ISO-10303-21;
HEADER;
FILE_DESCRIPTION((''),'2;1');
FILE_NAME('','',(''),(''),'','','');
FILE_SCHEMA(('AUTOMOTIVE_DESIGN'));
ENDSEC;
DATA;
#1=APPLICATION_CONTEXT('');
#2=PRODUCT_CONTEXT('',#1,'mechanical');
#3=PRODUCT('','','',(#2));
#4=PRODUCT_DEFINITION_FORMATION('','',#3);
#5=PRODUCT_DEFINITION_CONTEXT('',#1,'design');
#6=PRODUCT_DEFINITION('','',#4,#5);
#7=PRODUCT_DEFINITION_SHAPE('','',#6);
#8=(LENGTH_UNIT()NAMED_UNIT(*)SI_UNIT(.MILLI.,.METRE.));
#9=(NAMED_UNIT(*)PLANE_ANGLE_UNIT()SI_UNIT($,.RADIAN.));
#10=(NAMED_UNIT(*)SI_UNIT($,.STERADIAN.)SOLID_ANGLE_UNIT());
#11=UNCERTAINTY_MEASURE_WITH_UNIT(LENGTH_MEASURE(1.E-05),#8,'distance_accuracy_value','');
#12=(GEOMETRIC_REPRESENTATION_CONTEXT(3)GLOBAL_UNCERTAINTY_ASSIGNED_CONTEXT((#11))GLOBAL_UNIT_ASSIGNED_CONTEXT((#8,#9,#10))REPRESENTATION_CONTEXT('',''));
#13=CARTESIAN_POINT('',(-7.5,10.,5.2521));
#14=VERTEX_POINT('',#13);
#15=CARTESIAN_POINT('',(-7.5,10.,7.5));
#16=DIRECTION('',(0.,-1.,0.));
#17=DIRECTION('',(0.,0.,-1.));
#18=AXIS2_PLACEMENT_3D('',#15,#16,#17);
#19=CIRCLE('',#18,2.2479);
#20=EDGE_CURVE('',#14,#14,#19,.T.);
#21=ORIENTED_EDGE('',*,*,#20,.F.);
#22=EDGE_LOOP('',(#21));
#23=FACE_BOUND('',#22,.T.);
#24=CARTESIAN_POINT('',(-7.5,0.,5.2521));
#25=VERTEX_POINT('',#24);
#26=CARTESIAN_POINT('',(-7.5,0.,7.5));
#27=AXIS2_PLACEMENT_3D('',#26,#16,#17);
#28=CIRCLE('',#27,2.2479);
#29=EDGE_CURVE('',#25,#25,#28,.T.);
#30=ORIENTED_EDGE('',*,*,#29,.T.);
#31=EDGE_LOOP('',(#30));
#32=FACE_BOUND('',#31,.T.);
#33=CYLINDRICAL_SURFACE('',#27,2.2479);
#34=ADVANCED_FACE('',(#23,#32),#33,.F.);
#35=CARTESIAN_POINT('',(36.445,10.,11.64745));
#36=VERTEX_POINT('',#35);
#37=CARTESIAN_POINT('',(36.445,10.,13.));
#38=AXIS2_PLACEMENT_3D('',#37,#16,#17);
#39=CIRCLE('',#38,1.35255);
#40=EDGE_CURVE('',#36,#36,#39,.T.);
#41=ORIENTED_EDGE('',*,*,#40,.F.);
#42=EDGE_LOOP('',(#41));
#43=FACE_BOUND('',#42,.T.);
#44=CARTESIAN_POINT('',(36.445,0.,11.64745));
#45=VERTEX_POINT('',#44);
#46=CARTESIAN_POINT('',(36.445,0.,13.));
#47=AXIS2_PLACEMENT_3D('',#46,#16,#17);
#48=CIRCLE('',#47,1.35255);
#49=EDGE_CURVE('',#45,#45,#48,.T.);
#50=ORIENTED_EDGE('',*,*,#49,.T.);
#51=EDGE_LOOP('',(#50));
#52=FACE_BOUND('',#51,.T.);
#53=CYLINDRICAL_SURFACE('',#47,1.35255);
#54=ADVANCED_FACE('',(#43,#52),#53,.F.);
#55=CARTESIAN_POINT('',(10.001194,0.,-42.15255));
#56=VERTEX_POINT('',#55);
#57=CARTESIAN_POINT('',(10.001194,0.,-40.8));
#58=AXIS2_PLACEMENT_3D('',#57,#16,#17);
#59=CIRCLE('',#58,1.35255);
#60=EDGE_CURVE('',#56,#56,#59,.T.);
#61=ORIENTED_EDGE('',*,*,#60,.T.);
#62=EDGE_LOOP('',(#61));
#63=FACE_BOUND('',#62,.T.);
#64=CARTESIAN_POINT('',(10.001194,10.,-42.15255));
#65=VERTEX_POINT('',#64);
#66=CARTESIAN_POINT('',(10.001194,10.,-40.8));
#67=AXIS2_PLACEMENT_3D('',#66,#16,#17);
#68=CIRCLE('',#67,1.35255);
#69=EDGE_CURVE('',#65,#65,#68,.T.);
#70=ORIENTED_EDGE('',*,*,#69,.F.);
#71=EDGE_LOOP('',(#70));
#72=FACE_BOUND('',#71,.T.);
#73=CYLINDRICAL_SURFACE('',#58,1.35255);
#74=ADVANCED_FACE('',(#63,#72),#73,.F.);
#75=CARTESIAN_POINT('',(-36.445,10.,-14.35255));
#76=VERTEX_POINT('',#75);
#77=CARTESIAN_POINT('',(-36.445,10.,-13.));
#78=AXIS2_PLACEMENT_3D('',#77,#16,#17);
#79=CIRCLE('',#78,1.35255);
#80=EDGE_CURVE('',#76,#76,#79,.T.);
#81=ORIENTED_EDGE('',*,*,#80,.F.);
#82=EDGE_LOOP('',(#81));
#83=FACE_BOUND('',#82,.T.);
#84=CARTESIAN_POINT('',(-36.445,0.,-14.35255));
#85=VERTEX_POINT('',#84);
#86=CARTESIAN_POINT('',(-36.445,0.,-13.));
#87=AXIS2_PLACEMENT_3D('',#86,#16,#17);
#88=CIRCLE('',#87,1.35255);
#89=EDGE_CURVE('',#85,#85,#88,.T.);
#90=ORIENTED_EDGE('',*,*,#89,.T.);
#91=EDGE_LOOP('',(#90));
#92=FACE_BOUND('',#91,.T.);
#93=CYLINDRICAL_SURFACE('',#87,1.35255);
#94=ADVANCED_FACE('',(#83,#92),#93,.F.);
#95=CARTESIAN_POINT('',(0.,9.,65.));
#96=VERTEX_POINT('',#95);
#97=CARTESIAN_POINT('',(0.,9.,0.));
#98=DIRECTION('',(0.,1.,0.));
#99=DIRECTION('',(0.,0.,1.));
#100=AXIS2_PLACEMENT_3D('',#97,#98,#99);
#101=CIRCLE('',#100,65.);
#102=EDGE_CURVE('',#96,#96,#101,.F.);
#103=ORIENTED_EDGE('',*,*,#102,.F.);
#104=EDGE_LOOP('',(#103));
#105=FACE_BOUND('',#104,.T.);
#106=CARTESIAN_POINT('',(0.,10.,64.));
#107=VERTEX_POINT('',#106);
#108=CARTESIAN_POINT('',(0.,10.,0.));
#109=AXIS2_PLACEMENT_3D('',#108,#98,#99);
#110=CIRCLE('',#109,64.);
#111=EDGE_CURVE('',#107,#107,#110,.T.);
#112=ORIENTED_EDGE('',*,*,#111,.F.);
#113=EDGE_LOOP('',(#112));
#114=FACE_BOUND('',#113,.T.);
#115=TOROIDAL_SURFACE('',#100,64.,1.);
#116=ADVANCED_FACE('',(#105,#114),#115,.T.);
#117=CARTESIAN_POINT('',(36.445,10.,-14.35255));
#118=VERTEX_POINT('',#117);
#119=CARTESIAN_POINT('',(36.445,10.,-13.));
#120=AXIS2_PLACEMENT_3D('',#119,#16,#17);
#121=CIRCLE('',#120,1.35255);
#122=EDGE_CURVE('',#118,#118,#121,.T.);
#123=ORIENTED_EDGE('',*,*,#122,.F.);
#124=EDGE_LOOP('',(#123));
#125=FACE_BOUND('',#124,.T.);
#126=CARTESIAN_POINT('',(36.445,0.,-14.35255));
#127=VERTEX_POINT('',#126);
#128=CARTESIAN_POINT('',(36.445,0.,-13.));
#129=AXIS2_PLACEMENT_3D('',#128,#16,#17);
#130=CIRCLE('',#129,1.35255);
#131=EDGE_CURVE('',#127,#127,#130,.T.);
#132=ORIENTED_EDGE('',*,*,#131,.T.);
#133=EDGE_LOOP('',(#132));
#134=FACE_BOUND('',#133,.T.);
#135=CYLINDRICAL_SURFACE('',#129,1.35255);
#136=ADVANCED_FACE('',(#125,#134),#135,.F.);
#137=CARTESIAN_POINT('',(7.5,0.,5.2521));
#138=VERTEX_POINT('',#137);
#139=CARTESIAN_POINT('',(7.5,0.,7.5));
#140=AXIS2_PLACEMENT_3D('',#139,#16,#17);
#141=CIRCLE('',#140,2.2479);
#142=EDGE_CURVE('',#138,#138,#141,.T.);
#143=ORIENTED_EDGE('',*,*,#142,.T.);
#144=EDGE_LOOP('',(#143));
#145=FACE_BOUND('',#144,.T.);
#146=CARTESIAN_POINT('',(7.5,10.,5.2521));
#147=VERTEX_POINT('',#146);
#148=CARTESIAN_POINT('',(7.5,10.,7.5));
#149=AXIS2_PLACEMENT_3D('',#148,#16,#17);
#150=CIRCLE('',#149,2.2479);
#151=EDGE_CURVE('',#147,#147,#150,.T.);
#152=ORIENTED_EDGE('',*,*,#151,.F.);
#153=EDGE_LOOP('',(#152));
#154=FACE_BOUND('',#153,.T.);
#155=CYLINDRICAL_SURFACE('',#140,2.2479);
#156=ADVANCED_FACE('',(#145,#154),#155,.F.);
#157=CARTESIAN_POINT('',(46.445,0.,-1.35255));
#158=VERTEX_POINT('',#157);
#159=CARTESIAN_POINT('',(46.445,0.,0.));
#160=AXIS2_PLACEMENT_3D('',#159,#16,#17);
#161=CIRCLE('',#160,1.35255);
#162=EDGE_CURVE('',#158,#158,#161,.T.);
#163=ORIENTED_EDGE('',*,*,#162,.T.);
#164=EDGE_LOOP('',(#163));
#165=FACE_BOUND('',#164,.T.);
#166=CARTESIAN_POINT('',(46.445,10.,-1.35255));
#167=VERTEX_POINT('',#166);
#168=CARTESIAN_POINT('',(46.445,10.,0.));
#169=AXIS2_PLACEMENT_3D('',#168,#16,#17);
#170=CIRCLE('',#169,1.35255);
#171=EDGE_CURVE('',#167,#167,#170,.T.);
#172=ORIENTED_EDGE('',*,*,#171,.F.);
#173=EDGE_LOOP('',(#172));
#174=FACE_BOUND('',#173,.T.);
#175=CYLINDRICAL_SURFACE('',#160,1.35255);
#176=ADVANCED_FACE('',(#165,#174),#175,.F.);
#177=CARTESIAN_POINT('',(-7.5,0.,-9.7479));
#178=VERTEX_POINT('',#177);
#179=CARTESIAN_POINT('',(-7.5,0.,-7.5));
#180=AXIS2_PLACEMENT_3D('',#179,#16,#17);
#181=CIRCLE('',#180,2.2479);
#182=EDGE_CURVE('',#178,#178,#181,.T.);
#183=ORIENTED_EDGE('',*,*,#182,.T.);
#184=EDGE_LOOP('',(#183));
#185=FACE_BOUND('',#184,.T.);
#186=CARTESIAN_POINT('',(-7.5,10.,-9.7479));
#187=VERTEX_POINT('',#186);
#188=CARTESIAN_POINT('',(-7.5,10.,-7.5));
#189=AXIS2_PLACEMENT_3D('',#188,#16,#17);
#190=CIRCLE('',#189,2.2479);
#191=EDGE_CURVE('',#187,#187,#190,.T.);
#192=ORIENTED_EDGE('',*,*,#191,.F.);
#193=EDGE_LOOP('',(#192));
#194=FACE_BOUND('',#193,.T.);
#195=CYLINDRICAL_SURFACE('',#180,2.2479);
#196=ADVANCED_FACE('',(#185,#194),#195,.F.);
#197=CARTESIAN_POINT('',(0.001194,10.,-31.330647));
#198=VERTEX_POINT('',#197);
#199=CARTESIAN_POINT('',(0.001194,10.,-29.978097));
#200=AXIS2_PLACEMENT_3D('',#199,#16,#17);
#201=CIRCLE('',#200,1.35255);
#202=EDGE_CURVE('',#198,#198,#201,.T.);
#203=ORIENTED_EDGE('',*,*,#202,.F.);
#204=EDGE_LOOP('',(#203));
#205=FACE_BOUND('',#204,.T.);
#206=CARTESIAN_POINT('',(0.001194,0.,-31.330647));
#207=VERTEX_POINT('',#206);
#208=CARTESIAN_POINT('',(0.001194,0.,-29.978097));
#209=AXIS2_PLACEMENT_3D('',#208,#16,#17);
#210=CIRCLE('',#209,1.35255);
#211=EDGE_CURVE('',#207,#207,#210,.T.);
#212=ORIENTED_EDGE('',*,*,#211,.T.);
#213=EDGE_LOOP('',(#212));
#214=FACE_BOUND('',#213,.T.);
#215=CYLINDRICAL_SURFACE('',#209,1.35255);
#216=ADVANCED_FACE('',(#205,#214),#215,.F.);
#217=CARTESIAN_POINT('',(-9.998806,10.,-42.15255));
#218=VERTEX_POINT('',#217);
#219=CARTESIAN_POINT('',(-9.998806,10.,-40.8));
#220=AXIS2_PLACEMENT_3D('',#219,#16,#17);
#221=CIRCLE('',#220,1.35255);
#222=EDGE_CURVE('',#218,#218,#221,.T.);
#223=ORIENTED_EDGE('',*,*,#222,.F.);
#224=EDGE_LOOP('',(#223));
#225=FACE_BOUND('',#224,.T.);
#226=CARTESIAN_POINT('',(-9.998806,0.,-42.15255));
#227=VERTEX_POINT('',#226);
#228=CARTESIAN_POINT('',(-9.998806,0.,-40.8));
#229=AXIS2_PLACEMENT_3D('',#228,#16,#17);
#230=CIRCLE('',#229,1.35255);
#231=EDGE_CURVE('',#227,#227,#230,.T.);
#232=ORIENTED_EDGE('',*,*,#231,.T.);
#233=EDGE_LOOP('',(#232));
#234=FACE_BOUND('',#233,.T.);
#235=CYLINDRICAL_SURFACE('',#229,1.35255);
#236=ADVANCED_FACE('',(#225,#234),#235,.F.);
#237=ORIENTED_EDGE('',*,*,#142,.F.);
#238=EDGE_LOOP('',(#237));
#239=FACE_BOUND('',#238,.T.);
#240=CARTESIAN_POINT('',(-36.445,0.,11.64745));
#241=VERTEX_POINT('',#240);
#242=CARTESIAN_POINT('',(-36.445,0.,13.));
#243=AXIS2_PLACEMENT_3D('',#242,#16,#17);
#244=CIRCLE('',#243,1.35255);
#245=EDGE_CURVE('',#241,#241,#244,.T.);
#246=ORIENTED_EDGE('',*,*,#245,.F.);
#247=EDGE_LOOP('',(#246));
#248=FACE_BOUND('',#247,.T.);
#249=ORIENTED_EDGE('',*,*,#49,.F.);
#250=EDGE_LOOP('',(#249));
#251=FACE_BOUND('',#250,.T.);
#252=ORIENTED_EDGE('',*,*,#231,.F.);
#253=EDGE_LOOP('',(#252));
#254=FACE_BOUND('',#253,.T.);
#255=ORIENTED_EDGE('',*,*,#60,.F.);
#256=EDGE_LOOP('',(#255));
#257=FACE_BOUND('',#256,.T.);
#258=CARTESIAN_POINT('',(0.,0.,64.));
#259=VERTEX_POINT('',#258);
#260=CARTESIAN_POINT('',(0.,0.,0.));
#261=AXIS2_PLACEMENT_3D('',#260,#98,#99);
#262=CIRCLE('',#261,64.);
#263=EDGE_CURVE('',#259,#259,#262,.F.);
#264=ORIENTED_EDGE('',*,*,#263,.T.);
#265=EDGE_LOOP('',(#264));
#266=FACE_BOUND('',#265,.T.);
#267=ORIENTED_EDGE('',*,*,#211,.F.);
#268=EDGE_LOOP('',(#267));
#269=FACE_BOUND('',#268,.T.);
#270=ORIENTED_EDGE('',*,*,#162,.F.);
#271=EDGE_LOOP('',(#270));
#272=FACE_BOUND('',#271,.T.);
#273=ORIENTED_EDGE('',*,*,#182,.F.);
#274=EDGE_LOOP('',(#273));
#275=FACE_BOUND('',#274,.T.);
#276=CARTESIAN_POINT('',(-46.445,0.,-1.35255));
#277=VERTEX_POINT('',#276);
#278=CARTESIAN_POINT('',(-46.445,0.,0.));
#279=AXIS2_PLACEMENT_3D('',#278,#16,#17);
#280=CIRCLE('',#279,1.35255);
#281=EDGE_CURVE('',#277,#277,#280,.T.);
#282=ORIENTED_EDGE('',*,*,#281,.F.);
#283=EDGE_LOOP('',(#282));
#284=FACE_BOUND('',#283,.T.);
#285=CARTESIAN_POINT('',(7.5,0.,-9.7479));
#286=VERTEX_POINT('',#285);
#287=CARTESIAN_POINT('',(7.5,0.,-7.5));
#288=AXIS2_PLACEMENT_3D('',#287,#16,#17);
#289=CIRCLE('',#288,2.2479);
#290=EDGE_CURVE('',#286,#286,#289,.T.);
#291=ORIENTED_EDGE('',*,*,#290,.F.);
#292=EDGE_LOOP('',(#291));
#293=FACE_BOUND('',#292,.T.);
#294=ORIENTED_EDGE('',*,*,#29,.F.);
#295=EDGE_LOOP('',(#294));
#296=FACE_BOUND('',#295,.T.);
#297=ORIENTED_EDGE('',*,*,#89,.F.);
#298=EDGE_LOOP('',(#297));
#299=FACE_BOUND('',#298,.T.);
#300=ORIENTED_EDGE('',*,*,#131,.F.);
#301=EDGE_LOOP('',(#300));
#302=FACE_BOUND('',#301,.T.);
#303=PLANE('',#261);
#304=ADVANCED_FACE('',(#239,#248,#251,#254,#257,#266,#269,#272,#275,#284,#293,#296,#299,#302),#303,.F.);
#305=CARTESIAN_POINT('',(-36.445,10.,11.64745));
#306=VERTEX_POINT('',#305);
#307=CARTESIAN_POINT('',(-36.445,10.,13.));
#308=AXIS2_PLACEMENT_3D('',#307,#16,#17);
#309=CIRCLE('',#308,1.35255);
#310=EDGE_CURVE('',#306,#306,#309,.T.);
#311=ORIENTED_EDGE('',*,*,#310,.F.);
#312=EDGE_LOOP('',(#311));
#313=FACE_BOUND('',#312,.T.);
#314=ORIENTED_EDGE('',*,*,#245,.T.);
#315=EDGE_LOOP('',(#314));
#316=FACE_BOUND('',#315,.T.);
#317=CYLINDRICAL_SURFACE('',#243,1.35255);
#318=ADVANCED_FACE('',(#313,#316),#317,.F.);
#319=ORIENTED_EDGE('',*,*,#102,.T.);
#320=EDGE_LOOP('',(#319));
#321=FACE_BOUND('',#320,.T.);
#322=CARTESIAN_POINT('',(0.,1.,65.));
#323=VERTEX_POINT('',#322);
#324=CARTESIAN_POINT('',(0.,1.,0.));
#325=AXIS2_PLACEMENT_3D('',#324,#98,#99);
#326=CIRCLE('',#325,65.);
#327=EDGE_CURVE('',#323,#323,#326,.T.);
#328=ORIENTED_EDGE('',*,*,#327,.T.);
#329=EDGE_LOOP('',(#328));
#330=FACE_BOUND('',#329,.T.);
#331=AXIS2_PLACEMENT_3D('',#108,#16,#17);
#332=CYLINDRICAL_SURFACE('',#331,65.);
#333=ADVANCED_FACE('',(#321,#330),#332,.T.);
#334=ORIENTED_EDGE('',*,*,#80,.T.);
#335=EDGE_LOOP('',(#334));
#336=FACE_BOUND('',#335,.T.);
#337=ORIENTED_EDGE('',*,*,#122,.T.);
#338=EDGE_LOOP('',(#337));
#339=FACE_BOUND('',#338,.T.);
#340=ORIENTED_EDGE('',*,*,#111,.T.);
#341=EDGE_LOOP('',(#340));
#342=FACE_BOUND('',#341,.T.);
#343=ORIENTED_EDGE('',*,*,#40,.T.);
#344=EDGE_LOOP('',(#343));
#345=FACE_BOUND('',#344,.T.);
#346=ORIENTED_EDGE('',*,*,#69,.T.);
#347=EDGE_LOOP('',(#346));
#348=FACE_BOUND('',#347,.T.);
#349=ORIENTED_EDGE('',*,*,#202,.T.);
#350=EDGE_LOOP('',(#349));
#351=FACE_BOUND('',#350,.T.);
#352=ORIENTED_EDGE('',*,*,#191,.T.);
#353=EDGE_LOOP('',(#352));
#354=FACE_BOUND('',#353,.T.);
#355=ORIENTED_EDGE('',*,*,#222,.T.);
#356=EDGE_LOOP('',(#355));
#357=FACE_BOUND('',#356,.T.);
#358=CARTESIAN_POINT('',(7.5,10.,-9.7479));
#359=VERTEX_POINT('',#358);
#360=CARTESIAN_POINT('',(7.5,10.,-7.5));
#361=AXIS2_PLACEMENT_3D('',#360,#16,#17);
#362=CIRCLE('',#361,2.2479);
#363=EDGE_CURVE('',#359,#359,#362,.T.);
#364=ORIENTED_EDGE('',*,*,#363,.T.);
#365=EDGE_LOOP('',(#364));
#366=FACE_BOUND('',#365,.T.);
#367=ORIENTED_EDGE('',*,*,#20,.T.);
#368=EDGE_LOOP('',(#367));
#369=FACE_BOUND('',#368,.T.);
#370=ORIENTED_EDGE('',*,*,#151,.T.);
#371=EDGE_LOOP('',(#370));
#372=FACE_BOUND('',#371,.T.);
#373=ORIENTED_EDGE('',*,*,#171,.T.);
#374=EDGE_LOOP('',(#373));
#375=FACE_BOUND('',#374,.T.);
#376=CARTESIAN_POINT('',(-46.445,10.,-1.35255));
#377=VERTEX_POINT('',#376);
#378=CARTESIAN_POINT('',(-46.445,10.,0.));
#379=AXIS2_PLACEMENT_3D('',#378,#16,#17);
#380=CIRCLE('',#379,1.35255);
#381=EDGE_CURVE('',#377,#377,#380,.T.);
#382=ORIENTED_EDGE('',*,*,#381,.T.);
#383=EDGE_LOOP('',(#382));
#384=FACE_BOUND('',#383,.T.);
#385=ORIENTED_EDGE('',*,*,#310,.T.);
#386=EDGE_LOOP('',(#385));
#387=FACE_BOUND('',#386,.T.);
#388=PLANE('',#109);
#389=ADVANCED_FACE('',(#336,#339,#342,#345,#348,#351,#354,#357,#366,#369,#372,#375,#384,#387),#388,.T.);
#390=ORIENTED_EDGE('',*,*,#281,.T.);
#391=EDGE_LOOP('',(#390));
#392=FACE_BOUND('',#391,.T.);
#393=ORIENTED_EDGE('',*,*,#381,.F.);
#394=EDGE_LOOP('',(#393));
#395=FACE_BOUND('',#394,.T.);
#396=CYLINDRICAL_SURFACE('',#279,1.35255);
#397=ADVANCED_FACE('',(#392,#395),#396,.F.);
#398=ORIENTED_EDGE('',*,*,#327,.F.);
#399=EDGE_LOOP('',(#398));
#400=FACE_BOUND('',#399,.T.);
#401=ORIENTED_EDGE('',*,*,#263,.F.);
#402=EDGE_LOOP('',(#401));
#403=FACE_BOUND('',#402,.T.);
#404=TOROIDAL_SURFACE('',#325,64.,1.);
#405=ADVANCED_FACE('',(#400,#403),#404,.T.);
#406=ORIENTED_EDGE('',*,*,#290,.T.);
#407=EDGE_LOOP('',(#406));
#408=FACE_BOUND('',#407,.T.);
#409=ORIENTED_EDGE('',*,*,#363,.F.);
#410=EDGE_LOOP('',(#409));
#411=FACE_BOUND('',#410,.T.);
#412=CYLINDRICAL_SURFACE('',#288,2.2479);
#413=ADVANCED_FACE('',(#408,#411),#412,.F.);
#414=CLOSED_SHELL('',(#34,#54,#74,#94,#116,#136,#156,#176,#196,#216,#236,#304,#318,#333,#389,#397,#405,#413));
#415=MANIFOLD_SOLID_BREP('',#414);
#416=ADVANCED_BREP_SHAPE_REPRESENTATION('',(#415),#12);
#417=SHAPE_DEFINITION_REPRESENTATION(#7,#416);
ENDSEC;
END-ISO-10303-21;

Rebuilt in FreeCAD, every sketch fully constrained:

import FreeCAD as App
import Part
import Sketcher


def edges_at(feature, points):
    """Names of the edges that pass closest to the given points."""
    edges = feature.Shape.Edges
    near = lambda p: min(range(len(edges)), key=lambda i: edges[i].distToShape(Part.Vertex(*p))[0])
    return sorted({f"Edge{near(p) + 1}" for p in points})

doc = App.newDocument("Part")
body = doc.addObject("PartDesign::Body", "Body")

# Sketch on XZ plane
sketch1 = body.newObject("Sketcher::SketchObject", "Sketch")
sketch1.AttachmentSupport = (doc.getObject("XZ_Plane"), [""])
sketch1.MapMode = "FlatFace"
sketch1.addGeometry(Part.Circle(App.Vector(0, 0, 0), App.Vector(0, 0, 1), 65), False)
sketch1.addConstraint([
    Sketcher.Constraint("Coincident", 0, 3, -1, 1),
    Sketcher.Constraint("Diameter", 0, 130.0),
])
pad1 = body.newObject("PartDesign::Pad", "Pad")
pad1.Profile = sketch1
pad1.Length = 10
pad1.Reversed = True
doc.recompute()

fillet = body.newObject("PartDesign::Fillet", "Fillet")
fillet.Base = (pad1, edges_at(pad1, [(0, 0, -65), (0, 10, -65)]))
fillet.Radius = 1

# Sketch on XZ plane
sketch2 = body.newObject("Sketcher::SketchObject", "Sketch001")
sketch2.AttachmentSupport = (doc.getObject("XZ_Plane"), [""])
sketch2.MapMode = "FlatFace"
sketch2.addGeometry([
    Part.Circle(App.Vector(-46.4, 0, 0), App.Vector(0, 0, 1), 1.4),  # 0
    Part.Circle(App.Vector(46.4, 0, 0), App.Vector(0, 0, 1), 1.4),  # 1
    Part.Circle(App.Vector(-36.4, -13, 0), App.Vector(0, 0, 1), 1.4),  # 2
    Part.Circle(App.Vector(-36.4, 13, 0), App.Vector(0, 0, 1), 1.4),  # 3
    Part.Circle(App.Vector(36.4, 13, 0), App.Vector(0, 0, 1), 1.4),  # 4
    Part.Circle(App.Vector(36.4, -13, 0), App.Vector(0, 0, 1), 1.4),  # 5
    Part.Circle(App.Vector(10, -40.8, 0), App.Vector(0, 0, 1), 1.4),  # 6
    Part.Circle(App.Vector(0, -30, 0), App.Vector(0, 0, 1), 1.4),  # 7
    Part.Circle(App.Vector(-10, -40.8, 0), App.Vector(0, 0, 1), 1.4),  # 8
], False)
sketch2.addConstraint([
    Sketcher.Constraint("Equal", 0, 1),
    Sketcher.Constraint("Equal", 1, 2),
    Sketcher.Constraint("Equal", 2, 3),
    Sketcher.Constraint("Equal", 3, 4),
    Sketcher.Constraint("Equal", 4, 5),
    Sketcher.Constraint("Equal", 5, 6),
    Sketcher.Constraint("Equal", 6, 7),
    Sketcher.Constraint("Equal", 7, 8),
    Sketcher.Constraint("Symmetric", 0, 3, 1, 3, -1, 1),
    Sketcher.Constraint("Symmetric", 2, 3, 4, 3, -1, 1),
    Sketcher.Constraint("Symmetric", 3, 3, 5, 3, -1, 1),
    Sketcher.Constraint("Symmetric", 3, 3, 4, 3, -2),
    Sketcher.Constraint("PointOnObject", 0, 3, -1),
    Sketcher.Constraint("Horizontal", 6, 3, 8, 3),
    Sketcher.Constraint("DistanceY", 2, 3, -1, 1, 13.0),
    Sketcher.Constraint("DistanceX", 0, 3, 2, 3, 10.0),
    Sketcher.Constraint("DistanceX", 7, 3, 6, 3, 10.0),
    Sketcher.Constraint("DistanceX", 8, 3, 7, 3, 10.0),
    Sketcher.Constraint("Diameter", 0, 2.7051),
    Sketcher.Constraint("DistanceY", 6, 3, -1, 1, 40.8),
    Sketcher.Constraint("DistanceX", 0, 3, 1, 3, 92.89),
    Sketcher.Constraint("DistanceX", -1, 1, 6, 3, 10.001194),
    Sketcher.Constraint("DistanceY", 7, 3, -1, 1, 29.978097),
])
doc.recompute()
hole = body.newObject("PartDesign::Hole", "Hole")
hole.Profile = sketch2
hole.ThreadType = "None"
hole.Diameter = 2.7051
hole.DepthType = "ThroughAll"

# Sketch on XZ plane
sketch3 = body.newObject("Sketcher::SketchObject", "Sketch002")
sketch3.AttachmentSupport = (doc.getObject("XZ_Plane"), [""])
sketch3.MapMode = "FlatFace"
sketch3.addGeometry([
    Part.Circle(App.Vector(-7.5, 7.5, 0), App.Vector(0, 0, 1), 2.2),
    Part.Circle(App.Vector(7.5, 7.5, 0), App.Vector(0, 0, 1), 2.2),
    Part.Circle(App.Vector(-7.5, -7.5, 0), App.Vector(0, 0, 1), 2.2),
    Part.Circle(App.Vector(7.5, -7.5, 0), App.Vector(0, 0, 1), 2.2),
], False)
sketch3.addConstraint([
    Sketcher.Constraint("Equal", 0, 1),
    Sketcher.Constraint("Equal", 1, 2),
    Sketcher.Constraint("Equal", 2, 3),
    Sketcher.Constraint("Symmetric", 1, 3, 2, 3, -1, 1),
    Sketcher.Constraint("Symmetric", 0, 3, 3, 3, -1, 1),
    Sketcher.Constraint("Symmetric", 0, 3, 1, 3, -2),
    Sketcher.Constraint("DistanceX", 0, 3, 1, 3, 15.0),
    Sketcher.Constraint("DistanceY", 2, 3, 0, 3, 15.0),
    Sketcher.Constraint("Diameter", 0, 4.4958),
])
doc.recompute()
hole2 = body.newObject("PartDesign::Hole", "Hole001")
hole2.Profile = sketch3
hole2.ThreadType = "None"
hole2.Diameter = 4.4958
hole2.DepthType = "ThroughAll"

doc.recompute()
